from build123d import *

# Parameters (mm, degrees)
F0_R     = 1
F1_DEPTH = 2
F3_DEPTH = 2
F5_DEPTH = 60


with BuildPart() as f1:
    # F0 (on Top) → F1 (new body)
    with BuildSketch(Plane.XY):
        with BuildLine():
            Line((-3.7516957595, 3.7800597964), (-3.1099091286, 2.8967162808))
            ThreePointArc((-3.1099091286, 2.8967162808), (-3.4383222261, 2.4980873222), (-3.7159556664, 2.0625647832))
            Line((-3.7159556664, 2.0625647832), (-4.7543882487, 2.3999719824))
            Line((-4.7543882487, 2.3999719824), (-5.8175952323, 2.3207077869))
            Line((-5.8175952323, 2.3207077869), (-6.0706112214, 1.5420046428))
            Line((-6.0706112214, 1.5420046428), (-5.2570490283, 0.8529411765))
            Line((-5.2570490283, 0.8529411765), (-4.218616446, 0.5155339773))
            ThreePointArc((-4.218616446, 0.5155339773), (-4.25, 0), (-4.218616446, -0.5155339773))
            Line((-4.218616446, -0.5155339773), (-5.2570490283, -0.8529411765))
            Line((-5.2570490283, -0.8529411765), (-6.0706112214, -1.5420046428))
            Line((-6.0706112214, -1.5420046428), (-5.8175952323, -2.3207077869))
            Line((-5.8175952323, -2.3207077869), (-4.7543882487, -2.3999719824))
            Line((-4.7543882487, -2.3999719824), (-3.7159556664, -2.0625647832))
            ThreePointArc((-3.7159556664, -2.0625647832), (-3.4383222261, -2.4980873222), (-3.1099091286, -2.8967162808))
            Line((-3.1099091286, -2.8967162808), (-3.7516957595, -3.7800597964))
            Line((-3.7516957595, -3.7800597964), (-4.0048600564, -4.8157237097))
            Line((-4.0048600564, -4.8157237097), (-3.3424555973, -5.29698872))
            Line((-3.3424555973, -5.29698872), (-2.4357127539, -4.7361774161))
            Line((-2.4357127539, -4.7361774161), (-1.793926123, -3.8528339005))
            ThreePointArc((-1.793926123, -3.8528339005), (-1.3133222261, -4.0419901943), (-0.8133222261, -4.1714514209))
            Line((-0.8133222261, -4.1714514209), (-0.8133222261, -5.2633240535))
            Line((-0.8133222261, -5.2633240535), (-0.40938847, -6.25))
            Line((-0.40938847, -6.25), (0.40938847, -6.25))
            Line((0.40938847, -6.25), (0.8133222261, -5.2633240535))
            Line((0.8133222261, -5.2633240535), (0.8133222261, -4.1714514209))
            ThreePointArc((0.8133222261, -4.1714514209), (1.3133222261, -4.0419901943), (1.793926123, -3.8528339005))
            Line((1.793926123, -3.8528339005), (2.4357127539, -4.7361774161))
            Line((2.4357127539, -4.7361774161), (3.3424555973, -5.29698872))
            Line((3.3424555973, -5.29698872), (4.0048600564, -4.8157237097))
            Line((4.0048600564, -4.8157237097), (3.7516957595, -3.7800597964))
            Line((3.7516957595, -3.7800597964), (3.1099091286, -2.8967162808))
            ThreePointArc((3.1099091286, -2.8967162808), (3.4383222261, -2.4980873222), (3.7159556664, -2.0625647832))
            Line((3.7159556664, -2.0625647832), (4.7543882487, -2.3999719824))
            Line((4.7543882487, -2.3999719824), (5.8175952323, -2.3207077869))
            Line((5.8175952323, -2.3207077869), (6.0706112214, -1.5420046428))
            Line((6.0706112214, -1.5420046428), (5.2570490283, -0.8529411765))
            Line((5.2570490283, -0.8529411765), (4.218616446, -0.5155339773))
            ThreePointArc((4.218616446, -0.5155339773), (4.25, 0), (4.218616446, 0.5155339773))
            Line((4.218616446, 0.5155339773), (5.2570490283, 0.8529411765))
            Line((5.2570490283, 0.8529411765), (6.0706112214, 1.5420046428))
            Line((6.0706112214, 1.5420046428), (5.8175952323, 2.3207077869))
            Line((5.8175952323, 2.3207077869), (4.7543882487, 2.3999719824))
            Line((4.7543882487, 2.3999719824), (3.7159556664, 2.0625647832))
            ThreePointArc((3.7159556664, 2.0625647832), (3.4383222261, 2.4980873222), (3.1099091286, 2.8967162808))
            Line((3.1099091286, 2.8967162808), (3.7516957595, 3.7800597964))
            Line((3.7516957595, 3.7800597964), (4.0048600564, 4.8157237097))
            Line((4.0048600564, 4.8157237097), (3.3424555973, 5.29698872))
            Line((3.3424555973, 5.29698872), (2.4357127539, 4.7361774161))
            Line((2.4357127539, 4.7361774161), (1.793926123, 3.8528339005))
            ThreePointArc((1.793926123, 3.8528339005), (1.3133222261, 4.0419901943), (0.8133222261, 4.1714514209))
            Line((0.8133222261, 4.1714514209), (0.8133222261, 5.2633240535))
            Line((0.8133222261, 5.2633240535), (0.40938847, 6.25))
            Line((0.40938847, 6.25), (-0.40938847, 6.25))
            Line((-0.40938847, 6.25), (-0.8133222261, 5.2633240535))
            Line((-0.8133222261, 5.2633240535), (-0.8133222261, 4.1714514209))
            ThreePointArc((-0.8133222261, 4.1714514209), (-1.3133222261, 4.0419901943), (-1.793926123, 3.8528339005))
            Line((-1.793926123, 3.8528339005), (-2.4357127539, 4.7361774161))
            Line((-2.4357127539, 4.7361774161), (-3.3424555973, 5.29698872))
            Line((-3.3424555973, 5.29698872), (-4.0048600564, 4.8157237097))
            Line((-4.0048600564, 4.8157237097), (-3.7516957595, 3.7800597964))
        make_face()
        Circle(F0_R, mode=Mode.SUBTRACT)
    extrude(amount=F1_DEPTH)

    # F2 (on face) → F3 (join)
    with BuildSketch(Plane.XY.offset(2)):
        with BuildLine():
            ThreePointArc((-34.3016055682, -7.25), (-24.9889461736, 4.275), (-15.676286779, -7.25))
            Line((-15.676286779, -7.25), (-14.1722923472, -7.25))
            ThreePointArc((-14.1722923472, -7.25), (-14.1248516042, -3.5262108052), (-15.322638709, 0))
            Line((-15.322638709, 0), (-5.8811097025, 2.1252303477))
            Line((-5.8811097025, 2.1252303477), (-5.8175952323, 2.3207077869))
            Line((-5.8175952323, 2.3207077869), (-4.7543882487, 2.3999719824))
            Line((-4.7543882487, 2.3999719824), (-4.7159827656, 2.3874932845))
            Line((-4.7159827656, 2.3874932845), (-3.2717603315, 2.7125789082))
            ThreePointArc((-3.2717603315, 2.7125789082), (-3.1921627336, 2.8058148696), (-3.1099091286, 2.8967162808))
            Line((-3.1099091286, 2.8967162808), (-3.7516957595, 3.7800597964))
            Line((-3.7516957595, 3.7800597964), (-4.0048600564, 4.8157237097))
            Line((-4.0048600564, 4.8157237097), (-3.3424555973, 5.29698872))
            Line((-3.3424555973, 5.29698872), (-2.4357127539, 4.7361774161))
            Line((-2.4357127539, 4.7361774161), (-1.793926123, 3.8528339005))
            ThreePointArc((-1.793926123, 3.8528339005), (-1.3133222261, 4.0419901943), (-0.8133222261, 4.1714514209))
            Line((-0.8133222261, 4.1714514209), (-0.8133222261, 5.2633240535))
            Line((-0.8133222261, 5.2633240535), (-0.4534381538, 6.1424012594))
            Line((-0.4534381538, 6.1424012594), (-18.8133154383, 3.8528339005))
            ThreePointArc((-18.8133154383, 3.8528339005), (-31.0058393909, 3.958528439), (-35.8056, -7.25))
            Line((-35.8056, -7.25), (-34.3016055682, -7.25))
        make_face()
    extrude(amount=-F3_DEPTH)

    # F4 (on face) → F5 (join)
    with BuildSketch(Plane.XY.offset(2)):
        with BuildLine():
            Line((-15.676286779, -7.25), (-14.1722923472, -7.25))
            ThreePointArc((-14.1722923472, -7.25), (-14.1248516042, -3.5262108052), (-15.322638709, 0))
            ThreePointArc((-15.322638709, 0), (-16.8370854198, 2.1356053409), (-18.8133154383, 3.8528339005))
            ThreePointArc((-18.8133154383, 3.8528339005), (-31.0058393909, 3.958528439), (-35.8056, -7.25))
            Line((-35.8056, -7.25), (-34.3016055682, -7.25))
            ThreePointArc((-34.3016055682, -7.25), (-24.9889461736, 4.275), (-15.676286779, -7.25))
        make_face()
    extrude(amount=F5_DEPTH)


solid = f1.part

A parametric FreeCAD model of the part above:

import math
import FreeCAD as App
import Part
import Sketcher
Q = App.Units.Quantity

doc = App.newDocument("Part")
body = doc.addObject("PartDesign::Body", "Body")

# Sketch on XY plane
sketch1 = doc.addObject("Sketcher::SketchObject", "Sketch")
body.addObject(sketch1)
sketch1.AttachmentSupport = (doc.XY_Plane, [""])
sketch1.MapMode = "FlatFace"
sketch1.addGeometry([
    Part.LineSegment(App.Vector(-3.8, 3.8, 0), App.Vector(-3.1, 2.9, 0)),  # 0
    Part.ArcOfCircle(Part.Circle(App.Vector(0, 0, 0), App.Vector(0, 0, 1), 4.2), math.radians(137.03), math.radians(150.97)),  # 1
    Part.LineSegment(App.Vector(-3.7, 2.1, 0), App.Vector(-4.8, 2.4, 0)),  # 2
    Part.LineSegment(App.Vector(-4.8, 2.4, 0), App.Vector(-5.8, 2.3, 0)),  # 3
    Part.LineSegment(App.Vector(-5.8, 2.3, 0), App.Vector(-6.1, 1.5, 0)),  # 4
    Part.LineSegment(App.Vector(-6.1, 1.5, 0), App.Vector(-5.3, 0.9, 0)),  # 5
    Part.LineSegment(App.Vector(-5.3, 0.9, 0), App.Vector(-4.2, 0.5, 0)),  # 6
    Part.ArcOfCircle(Part.Circle(App.Vector(0, 0, 0), App.Vector(0, 0, 1), 4.3), math.radians(173.03), math.radians(186.97)),  # 7
    Part.LineSegment(App.Vector(-4.2, -0.5, 0), App.Vector(-5.3, -0.9, 0)),  # 8
    Part.LineSegment(App.Vector(-5.3, -0.9, 0), App.Vector(-6.1, -1.5, 0)),  # 9
    Part.LineSegment(App.Vector(-6.1, -1.5, 0), App.Vector(-5.8, -2.3, 0)),  # 10
    Part.LineSegment(App.Vector(-5.8, -2.3, 0), App.Vector(-4.8, -2.4, 0)),  # 11
    Part.LineSegment(App.Vector(-4.8, -2.4, 0), App.Vector(-3.7, -2.1, 0)),  # 12
    Part.ArcOfCircle(Part.Circle(App.Vector(0, 0, 0), App.Vector(0, 0, 1), 4.2), math.radians(-150.97), math.radians(-137.03)),  # 13
    Part.LineSegment(App.Vector(-3.1, -2.9, 0), App.Vector(-3.8, -3.8, 0)),  # 14
    Part.LineSegment(App.Vector(-3.8, -3.8, 0), App.Vector(-4, -4.8, 0)),  # 15
    Part.LineSegment(App.Vector(-4, -4.8, 0), App.Vector(-3.3, -5.3, 0)),  # 16
    Part.LineSegment(App.Vector(-3.3, -5.3, 0), App.Vector(-2.4, -4.7, 0)),  # 17
    Part.LineSegment(App.Vector(-2.4, -4.7, 0), App.Vector(-1.8, -3.9, 0)),  # 18
    Part.ArcOfCircle(Part.Circle(App.Vector(0, 0, 0), App.Vector(0, 0, 1), 4.2), math.radians(-114.97), math.radians(-101.03)),  # 19
    Part.LineSegment(App.Vector(-0.8, -4.2, 0), App.Vector(-0.8, -5.3, 0)),  # 20
    Part.LineSegment(App.Vector(-0.8, -5.3, 0), App.Vector(-0.4, -6.2, 0)),  # 21
    Part.LineSegment(App.Vector(-0.4, -6.2, 0), App.Vector(0.4, -6.2, 0)),  # 22
    Part.LineSegment(App.Vector(0.4, -6.2, 0), App.Vector(0.8, -5.3, 0)),  # 23
    Part.LineSegment(App.Vector(0.8, -5.3, 0), App.Vector(0.8, -4.2, 0)),  # 24
    Part.ArcOfCircle(Part.Circle(App.Vector(0, 0, 0), App.Vector(0, 0, 1), 4.2), math.radians(-78.97), math.radians(-65.03)),  # 25
    Part.LineSegment(App.Vector(1.8, -3.9, 0), App.Vector(2.4, -4.7, 0)),  # 26
    Part.LineSegment(App.Vector(2.4, -4.7, 0), App.Vector(3.3, -5.3, 0)),  # 27
    Part.LineSegment(App.Vector(3.3, -5.3, 0), App.Vector(4, -4.8, 0)),  # 28
    Part.LineSegment(App.Vector(4, -4.8, 0), App.Vector(3.8, -3.8, 0)),  # 29
    Part.LineSegment(App.Vector(3.8, -3.8, 0), App.Vector(3.1, -2.9, 0)),  # 30
    Part.ArcOfCircle(Part.Circle(App.Vector(0, 0, 0), App.Vector(0, 0, 1), 4.2), math.radians(-42.97), math.radians(-29.03)),  # 31
    Part.LineSegment(App.Vector(3.7, -2.1, 0), App.Vector(4.8, -2.4, 0)),  # 32
    Part.LineSegment(App.Vector(4.8, -2.4, 0), App.Vector(5.8, -2.3, 0)),  # 33
    Part.LineSegment(App.Vector(5.8, -2.3, 0), App.Vector(6.1, -1.5, 0)),  # 34
    Part.LineSegment(App.Vector(6.1, -1.5, 0), App.Vector(5.3, -0.9, 0)),  # 35
    Part.LineSegment(App.Vector(5.3, -0.9, 0), App.Vector(4.2, -0.5, 0)),  # 36
    Part.ArcOfCircle(Part.Circle(App.Vector(0, 0, 0), App.Vector(0, 0, 1), 4.3), math.radians(-6.97), math.radians(6.97)),  # 37
    Part.LineSegment(App.Vector(4.2, 0.5, 0), App.Vector(5.3, 0.9, 0)),  # 38
    Part.LineSegment(App.Vector(5.3, 0.9, 0), App.Vector(6.1, 1.5, 0)),  # 39
    Part.LineSegment(App.Vector(6.1, 1.5, 0), App.Vector(5.8, 2.3, 0)),  # 40
    Part.LineSegment(App.Vector(5.8, 2.3, 0), App.Vector(4.8, 2.4, 0)),  # 41
    Part.LineSegment(App.Vector(4.8, 2.4, 0), App.Vector(3.7, 2.1, 0)),  # 42
    Part.ArcOfCircle(Part.Circle(App.Vector(0, 0, 0), App.Vector(0, 0, 1), 4.2), math.radians(29.03), math.radians(42.97)),  # 43
    Part.LineSegment(App.Vector(3.1, 2.9, 0), App.Vector(3.8, 3.8, 0)),  # 44
    Part.LineSegment(App.Vector(3.8, 3.8, 0), App.Vector(4, 4.8, 0)),  # 45
    Part.LineSegment(App.Vector(4, 4.8, 0), App.Vector(3.3, 5.3, 0)),  # 46
    Part.LineSegment(App.Vector(3.3, 5.3, 0), App.Vector(2.4, 4.7, 0)),  # 47
    Part.LineSegment(App.Vector(2.4, 4.7, 0), App.Vector(1.8, 3.9, 0)),  # 48
    Part.ArcOfCircle(Part.Circle(App.Vector(0, 0, 0), App.Vector(0, 0, 1), 4.2), math.radians(65.03), math.radians(78.97)),  # 49
    Part.LineSegment(App.Vector(0.8, 4.2, 0), App.Vector(0.8, 5.3, 0)),  # 50
    Part.LineSegment(App.Vector(0.8, 5.3, 0), App.Vector(0.4, 6.2, 0)),  # 51
    Part.LineSegment(App.Vector(0.4, 6.2, 0), App.Vector(-0.4, 6.2, 0)),  # 52
    Part.LineSegment(App.Vector(-0.4, 6.2, 0), App.Vector(-0.8, 5.3, 0)),  # 53
    Part.LineSegment(App.Vector(-0.8, 5.3, 0), App.Vector(-0.8, 4.2, 0)),  # 54
    Part.ArcOfCircle(Part.Circle(App.Vector(0, 0, 0), App.Vector(0, 0, 1), 4.2), math.radians(101.03), math.radians(114.97)),  # 55
    Part.LineSegment(App.Vector(-1.8, 3.9, 0), App.Vector(-2.4, 4.7, 0)),  # 56
    Part.LineSegment(App.Vector(-2.4, 4.7, 0), App.Vector(-3.3, 5.3, 0)),  # 57
    Part.LineSegment(App.Vector(-3.3, 5.3, 0), App.Vector(-4, 4.8, 0)),  # 58
    Part.LineSegment(App.Vector(-4, 4.8, 0), App.Vector(-3.8, 3.8, 0)),  # 59
    Part.Circle(App.Vector(0, 0, 0), App.Vector(0, 0, 1), 1),  # 60
], False)
sketch1.addConstraint([
    Sketcher.Constraint("Coincident", 0, 2, 1, 1),
    Sketcher.Constraint("Coincident", 1, 2, 2, 1),
    Sketcher.Constraint("Coincident", 2, 2, 3, 1),
    Sketcher.Constraint("Coincident", 3, 2, 4, 1),
    Sketcher.Constraint("Coincident", 4, 2, 5, 1),
    Sketcher.Constraint("Coincident", 5, 2, 6, 1),
    Sketcher.Constraint("Coincident", 6, 2, 7, 1),
    Sketcher.Constraint("Coincident", 7, 2, 8, 1),
    Sketcher.Constraint("Coincident", 8, 2, 9, 1),
    Sketcher.Constraint("Coincident", 9, 2, 10, 1),
    Sketcher.Constraint("Coincident", 10, 2, 11, 1),
    Sketcher.Constraint("Coincident", 11, 2, 12, 1),
    Sketcher.Constraint("Coincident", 12, 2, 13, 1),
    Sketcher.Constraint("Coincident", 13, 2, 14, 1),
    Sketcher.Constraint("Coincident", 14, 2, 15, 1),
    Sketcher.Constraint("Coincident", 15, 2, 16, 1),
    Sketcher.Constraint("Coincident", 16, 2, 17, 1),
    Sketcher.Constraint("Coincident", 17, 2, 18, 1),
    Sketcher.Constraint("Coincident", 18, 2, 19, 1),
    Sketcher.Constraint("Coincident", 19, 2, 20, 1),
    Sketcher.Constraint("Coincident", 20, 2, 21, 1),
    Sketcher.Constraint("Coincident", 21, 2, 22, 1),
    Sketcher.Constraint("Coincident", 22, 2, 23, 1),
    Sketcher.Constraint("Coincident", 23, 2, 24, 1),
    Sketcher.Constraint("Coincident", 24, 2, 25, 1),
    Sketcher.Constraint("Coincident", 25, 2, 26, 1),
    Sketcher.Constraint("Coincident", 26, 2, 27, 1),
    Sketcher.Constraint("Coincident", 27, 2, 28, 1),
    Sketcher.Constraint("Coincident", 28, 2, 29, 1),
    Sketcher.Constraint("Coincident", 29, 2, 30, 1),
    Sketcher.Constraint("Coincident", 30, 2, 31, 1),
    Sketcher.Constraint("Coincident", 31, 2, 32, 1),
    Sketcher.Constraint("Coincident", 32, 2, 33, 1),
    Sketcher.Constraint("Coincident", 33, 2, 34, 1),
    Sketcher.Constraint("Coincident", 34, 2, 35, 1),
    Sketcher.Constraint("Coincident", 35, 2, 36, 1),
    Sketcher.Constraint("Coincident", 36, 2, 37, 1),
    Sketcher.Constraint("Coincident", 37, 2, 38, 1),
    Sketcher.Constraint("Coincident", 38, 2, 39, 1),
    Sketcher.Constraint("Coincident", 39, 2, 40, 1),
    Sketcher.Constraint("Coincident", 40, 2, 41, 1),
    Sketcher.Constraint("Coincident", 41, 2, 42, 1),
    Sketcher.Constraint("Coincident", 42, 2, 43, 1),
    Sketcher.Constraint("Coincident", 43, 2, 44, 1),
    Sketcher.Constraint("Coincident", 44, 2, 45, 1),
    Sketcher.Constraint("Coincident", 45, 2, 46, 1),
    Sketcher.Constraint("Coincident", 46, 2, 47, 1),
    Sketcher.Constraint("Coincident", 47, 2, 48, 1),
    Sketcher.Constraint("Coincident", 48, 2, 49, 1),
    Sketcher.Constraint("Coincident", 49, 2, 50, 1),
    Sketcher.Constraint("Coincident", 50, 2, 51, 1),
    Sketcher.Constraint("Coincident", 51, 2, 52, 1),
    Sketcher.Constraint("Coincident", 52, 2, 53, 1),
    Sketcher.Constraint("Coincident", 53, 2, 54, 1),
    Sketcher.Constraint("Coincident", 54, 2, 55, 1),
    Sketcher.Constraint("Coincident", 55, 2, 56, 1),
    Sketcher.Constraint("Coincident", 56, 2, 57, 1),
    Sketcher.Constraint("Coincident", 57, 2, 58, 1),
    Sketcher.Constraint("Coincident", 58, 2, 59, 1),
    Sketcher.Constraint("Coincident", 59, 2, 0, 1),
    Sketcher.Constraint("Vertical", 20),
    Sketcher.Constraint("Horizontal", 22),
    Sketcher.Constraint("Vertical", 24),
    Sketcher.Constraint("Vertical", 50),
    Sketcher.Constraint("Horizontal", 52),
    Sketcher.Constraint("Vertical", 54),
    Sketcher.Constraint("Coincident", 1, 3, -1, 1),
    Sketcher.Constraint("Coincident", 7, 3, -1, 1),
    Sketcher.Constraint("Coincident", 13, 3, -1, 1),
    Sketcher.Constraint("Coincident", 19, 3, -1, 1),
    Sketcher.Constraint("Coincident", 25, 3, -1, 1),
    Sketcher.Constraint("Coincident", 31, 3, -1, 1),
    Sketcher.Constraint("Coincident", 37, 3, -1, 1),
    Sketcher.Constraint("Coincident", 43, 3, -1, 1),
    Sketcher.Constraint("Coincident", 49, 3, -1, 1),
    Sketcher.Constraint("Coincident", 55, 3, -1, 1),
    Sketcher.Constraint("Coincident", 60, 3, -1, 1),
    Sketcher.Constraint("Equal", 1, 7),
    Sketcher.Constraint("Equal", 7, 13),
    Sketcher.Constraint("Equal", 13, 19),
    Sketcher.Constraint("Equal", 19, 25),
    Sketcher.Constraint("Equal", 25, 31),
    Sketcher.Constraint("Equal", 31, 37),
    Sketcher.Constraint("Equal", 37, 43),
    Sketcher.Constraint("Equal", 43, 49),
    Sketcher.Constraint("Equal", 49, 55),
    Sketcher.Constraint("Symmetric", 2, 2, 32, 2, -1, 1),
    Sketcher.Constraint("Symmetric", 3, 2, 33, 2, -1, 1),
    Sketcher.Constraint("Symmetric", 4, 2, 34, 2, -1, 1),
    Sketcher.Constraint("Symmetric", 5, 2, 35, 2, -1, 1),
    Sketcher.Constraint("Symmetric", 8, 2, 38, 2, -1, 1),
    Sketcher.Constraint("Symmetric", 9, 2, 39, 2, -1, 1),
    Sketcher.Constraint("Symmetric", 10, 2, 40, 2, -1, 1),
    Sketcher.Constraint("Symmetric", 11, 2, 41, 2, -1, 1),
    Sketcher.Constraint("Symmetric", 14, 2, 44, 2, -1, 1),
    Sketcher.Constraint("Symmetric", 15, 2, 45, 2, -1, 1),
    Sketcher.Constraint("Symmetric", 16, 2, 46, 2, -1, 1),
    Sketcher.Constraint("Symmetric", 17, 2, 47, 2, -1, 1),
    Sketcher.Constraint("Symmetric", 20, 2, 50, 2, -1, 1),
    Sketcher.Constraint("Symmetric", 21, 2, 51, 2, -1, 1),
    Sketcher.Constraint("Symmetric", 23, 2, 53, 2, -1, 1),
    Sketcher.Constraint("Symmetric", 26, 2, 56, 2, -1, 1),
    Sketcher.Constraint("Symmetric", 27, 2, 57, 2, -1, 1),
    Sketcher.Constraint("Symmetric", 28, 2, 58, 2, -1, 1),
    Sketcher.Constraint("Symmetric", 29, 2, 59, 2, -1, 1),
    Sketcher.Constraint("Symmetric", 20, 2, 23, 2, -2),
    Sketcher.Constraint("Symmetric", 17, 2, 26, 2, -2),
    Sketcher.Constraint("Symmetric", 16, 2, 27, 2, -2),
    Sketcher.Constraint("Symmetric", 15, 2, 28, 2, -2),
    Sketcher.Constraint("Symmetric", 14, 2, 29, 2, -2),
    Sketcher.Constraint("Symmetric", 11, 2, 32, 2, -2),
    Sketcher.Constraint("Symmetric", 10, 2, 33, 2, -2),
    Sketcher.Constraint("Symmetric", 9, 2, 34, 2, -2),
    Sketcher.Constraint("Symmetric", 8, 2, 35, 2, -2),
    Sketcher.Constraint("Perpendicular", 2, 4),
    Sketcher.Constraint("Perpendicular", 4, 6),
    Sketcher.Constraint("Perpendicular", 8, 10),
    Sketcher.Constraint("Perpendicular", 10, 12),
    Sketcher.Constraint("Perpendicular", 14, 16),
    Sketcher.Constraint("Perpendicular", 16, 18),
    Sketcher.Constraint("Parallel", 0, 26),
    Sketcher.Constraint("Perpendicular", 26, 28),
    Sketcher.Constraint("Perpendicular", 28, 30),
    Sketcher.Constraint("Parallel", 6, 32),
    Sketcher.Constraint("Perpendicular", 34, 36),
    Sketcher.Constraint("Parallel", 12, 38),
    Sketcher.Constraint("Perpendicular", 40, 42),
    Sketcher.Constraint("Parallel", 18, 44),
    Sketcher.Constraint("Perpendicular", 46, 48),
    Sketcher.Constraint("Parallel", 23, 53),
    Sketcher.Constraint("Parallel", 30, 56),
    Sketcher.Constraint("Vertical", 22, 2, 51, 2),
    Sketcher.Constraint("Equal", 0, 2),
    Sketcher.Constraint("Equal", 3, 5),
    Sketcher.Constraint("Equal", 2, 6),
    Sketcher.Constraint("Equal", 11, 15),
    Sketcher.Constraint("Equal", 10, 16),
    Sketcher.Constraint("Equal", 15, 17),
    Sketcher.Constraint("Equal", 14, 18),
    Sketcher.Constraint("Equal", 17, 21),
    Sketcher.Constraint("Diameter", 60, Q("2 mm")),
    Sketcher.Constraint("Angle", 0, Q("-54 deg")),
    Sketcher.Constraint("Angle", 2, Q("162 deg")),
    Sketcher.Constraint("Radius", 1, Q("4.25 mm")),
    Sketcher.Constraint("DistanceY", 21, 2, -1, 1, Q("6.25 mm")),
    Sketcher.Constraint("DistanceX", 22, 1, 22, 2, Q("0.818777 mm")),
    Sketcher.Constraint("DistanceY", 20, 2, 20, 1, Q("1.091873 mm")),
    Sketcher.Constraint("DistanceX", 0, 2, -1, 1, Q("3.109909 mm")),
    Sketcher.Constraint("DistanceX", 2, 2, -1, 1, Q("4.754388 mm")),
    Sketcher.Constraint("DistanceY", -1, 1, 2, 2, Q("2.399972 mm")),
    Sketcher.Constraint("DistanceX", 4, 2, -1, 1, Q("6.070611 mm")),
    Sketcher.Constraint("DistanceX", 5, 2, -1, 1, Q("5.257049 mm")),
    Sketcher.Constraint("DistanceX", 15, 2, -1, 1, Q("4.00486 mm")),
    Sketcher.Constraint("DistanceY", 16, 2, -1, 1, Q("5.296989 mm")),
])
pad1 = doc.addObject("PartDesign::Pad", "Pad")
body.addObject(pad1)
pad1.Profile = sketch1
pad1.Length = 2

# Sketch on XY plane
sketch2 = doc.addObject("Sketcher::SketchObject", "Sketch001")
body.addObject(sketch2)
sketch2.AttachmentSupport = (doc.XY_Plane, [""])
sketch2.MapMode = "FlatFace"
sketch2.AttachmentOffset = App.Placement(App.Vector(0, 0, 2), App.Rotation())
sketch2.addGeometry([
    Part.ArcOfCircle(Part.Circle(App.Vector(-24.989, -5.25, 0), App.Vector(0, 0, 1), 9.525), math.radians(-12), math.radians(192)),  # 0
    Part.LineSegment(App.Vector(-15.676, -7.25, 0), App.Vector(-14.172, -7.25, 0)),  # 1
    Part.ArcOfCircle(Part.Circle(App.Vector(-24.989, -5.25, 0), App.Vector(0, 0, 1), 11), math.radians(-10), math.radians(29)),  # 2
    Part.LineSegment(App.Vector(-15.323, 0, 0), App.Vector(-5.881, 2.125, 0)),  # 3
    Part.LineSegment(App.Vector(-5.881, 2.125, 0), App.Vector(-5.818, 2.321, 0)),  # 4
    Part.LineSegment(App.Vector(-5.818, 2.321, 0), App.Vector(-4.754, 2.4, 0)),  # 5
    Part.LineSegment(App.Vector(-4.754, 2.4, 0), App.Vector(-4.716, 2.387, 0)),  # 6
    Part.LineSegment(App.Vector(-4.716, 2.387, 0), App.Vector(-3.272, 2.713, 0)),  # 7
    Part.ArcOfCircle(Part.Circle(App.Vector(0, 0, 0), App.Vector(0, 0, 1), 4.25), math.radians(137.03), math.radians(140.34)),  # 8
    Part.LineSegment(App.Vector(-3.11, 2.897, 0), App.Vector(-3.752, 3.78, 0)),  # 9
    Part.LineSegment(App.Vector(-3.752, 3.78, 0), App.Vector(-4.005, 4.816, 0)),  # 10
    Part.LineSegment(App.Vector(-4.005, 4.816, 0), App.Vector(-3.342, 5.297, 0)),  # 11
    Part.LineSegment(App.Vector(-3.342, 5.297, 0), App.Vector(-2.436, 4.736, 0)),  # 12
    Part.LineSegment(App.Vector(-2.436, 4.736, 0), App.Vector(-1.794, 3.853, 0)),  # 13
    Part.ArcOfCircle(Part.Circle(App.Vector(0, 0, 0), App.Vector(0, 0, 1), 4.25), math.radians(101.03), math.radians(114.97)),  # 14
    Part.LineSegment(App.Vector(-0.813, 4.171, 0), App.Vector(-0.813, 5.263, 0)),  # 15
    Part.LineSegment(App.Vector(-0.813, 5.263, 0), App.Vector(-0.453, 6.142, 0)),  # 16
    Part.LineSegment(App.Vector(-0.453, 6.142, 0), App.Vector(-18.813, 3.853, 0)),  # 17
    Part.ArcOfCircle(Part.Circle(App.Vector(-24.989, -5.25, 0), App.Vector(0, 0, 1), 11), math.radians(56), math.radians(190)),  # 18
    Part.LineSegment(App.Vector(-35.806, -7.25, 0), App.Vector(-34.302, -7.25, 0)),  # 19
], False)
sketch2.addConstraint([
    Sketcher.Constraint("Coincident", 0, 1, 1, 1),
    Sketcher.Constraint("Coincident", 1, 2, 2, 1),
    Sketcher.Constraint("Coincident", 2, 2, 3, 1),
    Sketcher.Constraint("Coincident", 3, 2, 4, 1),
    Sketcher.Constraint("Coincident", 4, 2, 5, 1),
    Sketcher.Constraint("Coincident", 5, 2, 6, 1),
    Sketcher.Constraint("Coincident", 6, 2, 7, 1),
    Sketcher.Constraint("Coincident", 7, 2, 8, 2),
    Sketcher.Constraint("Coincident", 8, 1, 9, 1),
    Sketcher.Constraint("Coincident", 9, 2, 10, 1),
    Sketcher.Constraint("Coincident", 10, 2, 11, 1),
    Sketcher.Constraint("Coincident", 11, 2, 12, 1),
    Sketcher.Constraint("Coincident", 12, 2, 13, 1),
    Sketcher.Constraint("Coincident", 13, 2, 14, 2),
    Sketcher.Constraint("Coincident", 14, 1, 15, 1),
    Sketcher.Constraint("Coincident", 15, 2, 16, 1),
    Sketcher.Constraint("Coincident", 16, 2, 17, 1),
    Sketcher.Constraint("Coincident", 17, 2, 18, 1),
    Sketcher.Constraint("Coincident", 18, 2, 19, 1),
    Sketcher.Constraint("Coincident", 19, 2, 0, 2),
    Sketcher.Constraint("Horizontal", 1),
    Sketcher.Constraint("Vertical", 15),
    Sketcher.Constraint("Horizontal", 19),
    Sketcher.Constraint("Coincident", 8, 3, -1, 1),
    Sketcher.Constraint("Coincident", 14, 3, -1, 1),
    Sketcher.Constraint("Coincident", 2, 3, 0, 3),
    Sketcher.Constraint("Coincident", 18, 3, 0, 3),
    Sketcher.Constraint("Equal", 8, 14),
    Sketcher.Constraint("Equal", 2, 18),
    Sketcher.Constraint("PointOnObject", 2, 2, -1),
    Sketcher.Constraint("Perpendicular", 4, 6),
    Sketcher.Constraint("Parallel", 3, 7),
    Sketcher.Constraint("Perpendicular", 9, 11),
    Sketcher.Constraint("Perpendicular", 11, 13),
    Sketcher.Constraint("Horizontal", 13, 2, 17, 2),
    Sketcher.Constraint("Horizontal", 1, 2, 18, 2),
    Sketcher.Constraint("Equal", 5, 10),
    Sketcher.Constraint("Equal", 10, 12),
    Sketcher.Constraint("Equal", 9, 13),
    Sketcher.Constraint("Radius", 2, Q("11 mm")),
    Sketcher.Constraint("Angle", 4, Q("72 deg")),
    Sketcher.Constraint("Angle", 9, Q("126 deg")),
    Sketcher.Constraint("Radius", 8, Q("4.25 mm")),
    Sketcher.Constraint("Radius", 0, Q("9.525 mm")),
    Sketcher.Constraint("DistanceY", 0, 1, 2, 3, Q("2 mm")),
    Sketcher.Constraint("DistanceY", 0, 3, -1, 1, Q("5.25 mm")),
    Sketcher.Constraint("DistanceY", -1, 1, 16, 2, Q("6.142401 mm")),
    Sketcher.Constraint("DistanceX", 18, 2, -1, 1, Q("35.8056 mm")),
    Sketcher.Constraint("DistanceX", 3, 2, 8, 1, Q("2.771201 mm")),
    Sketcher.Constraint("DistanceX", 4, 2, 9, 2, Q("2.065899 mm")),
    Sketcher.Constraint("DistanceX", 10, 2, 7, 2, Q("0.7331 mm")),
    Sketcher.Constraint("DistanceY", 7, 2, 12, 2, Q("2.023599 mm")),
    Sketcher.Constraint("DistanceY", 10, 2, 15, 2, Q("0.4476 mm")),
    Sketcher.Constraint("Distance", 3, Q("9.677762 mm")),
    Sketcher.Constraint("Distance", 6, Q("0.040382 mm")),
    Sketcher.Constraint("Distance", 16, Q("0.949891 mm")),
    Sketcher.Constraint("DistanceY", 15, 1, 15, 2, Q("1.091873 mm")),
    Sketcher.Constraint("DistanceX", 3, 2, -1, 1, Q("5.88111 mm")),
    Sketcher.Constraint("DistanceX", 5, 2, -1, 1, Q("4.754388 mm")),
    Sketcher.Constraint("DistanceY", -1, 1, 5, 2, Q("2.399972 mm")),
    Sketcher.Constraint("DistanceY", -1, 1, 9, 2, Q("3.78006 mm")),
])
pad2 = doc.addObject("PartDesign::Pad", "Pad001")
body.addObject(pad2)
pad2.Profile = sketch2
pad2.Length = 2
pad2.Reversed = True

# Sketch on XY plane
sketch3 = doc.addObject("Sketcher::SketchObject", "Sketch002")
body.addObject(sketch3)
sketch3.AttachmentSupport = (doc.XY_Plane, [""])
sketch3.MapMode = "FlatFace"
sketch3.AttachmentOffset = App.Placement(App.Vector(0, 0, 2), App.Rotation())
sketch3.addGeometry([
    Part.LineSegment(App.Vector(-15.7, -7.2, 0), App.Vector(-14.2, -7.2, 0)),  # 0
    Part.ArcOfCircle(Part.Circle(App.Vector(-25, -5.2, 0), App.Vector(0, 0, 1), 11), math.radians(-10), math.radians(29)),  # 1
    Part.ArcOfCircle(Part.Circle(App.Vector(-25, -5.2, 0), App.Vector(0, 0, 1), 11), math.radians(29), math.radians(56)),  # 2
    Part.ArcOfCircle(Part.Circle(App.Vector(-25, -5.2, 0), App.Vector(0, 0, 1), 11), math.radians(56), math.radians(190)),  # 3
    Part.LineSegment(App.Vector(-35.8, -7.2, 0), App.Vector(-34.3, -7.2, 0)),  # 4
    Part.ArcOfCircle(Part.Circle(App.Vector(-25, -5.2, 0), App.Vector(0, 0, 1), 9.5), math.radians(-12), math.radians(192)),  # 5
], False)
sketch3.addConstraint([
    Sketcher.Constraint("Coincident", 0, 2, 1, 1),
    Sketcher.Constraint("Tangent", 1, 2, 2, 1),
    Sketcher.Constraint("Tangent", 2, 2, 3, 1),
    Sketcher.Constraint("Coincident", 3, 2, 4, 1),
    Sketcher.Constraint("Coincident", 4, 2, 5, 2),
    Sketcher.Constraint("Coincident", 5, 1, 0, 1),
    Sketcher.Constraint("Horizontal", 0),
    Sketcher.Constraint("Horizontal", 4),
    Sketcher.Constraint("Coincident", 3, 3, 1, 3),
    Sketcher.Constraint("Coincident", 5, 3, 1, 3),
    Sketcher.Constraint("PointOnObject", 1, 2, -1),
    Sketcher.Constraint("Horizontal", 0, 2, 3, 2),
    Sketcher.Constraint("Radius", 1, Q("11 mm")),
    Sketcher.Constraint("Radius", 5, Q("9.525 mm")),
    Sketcher.Constraint("DistanceY", 0, 2, 2, 3, Q("2 mm")),
    Sketcher.Constraint("DistanceY", 1, 3, -1, 1, Q("5.25 mm")),
    Sketcher.Constraint("DistanceX", 3, 2, -1, 1, Q("35.8056 mm")),
    Sketcher.Constraint("DistanceX", 2, 3, 2, 2, Q("6.175631 mm")),
])
pad3 = doc.addObject("PartDesign::Pad", "Pad002")
body.addObject(pad3)
pad3.Profile = sketch3
pad3.Length = 60

doc.recompute()
